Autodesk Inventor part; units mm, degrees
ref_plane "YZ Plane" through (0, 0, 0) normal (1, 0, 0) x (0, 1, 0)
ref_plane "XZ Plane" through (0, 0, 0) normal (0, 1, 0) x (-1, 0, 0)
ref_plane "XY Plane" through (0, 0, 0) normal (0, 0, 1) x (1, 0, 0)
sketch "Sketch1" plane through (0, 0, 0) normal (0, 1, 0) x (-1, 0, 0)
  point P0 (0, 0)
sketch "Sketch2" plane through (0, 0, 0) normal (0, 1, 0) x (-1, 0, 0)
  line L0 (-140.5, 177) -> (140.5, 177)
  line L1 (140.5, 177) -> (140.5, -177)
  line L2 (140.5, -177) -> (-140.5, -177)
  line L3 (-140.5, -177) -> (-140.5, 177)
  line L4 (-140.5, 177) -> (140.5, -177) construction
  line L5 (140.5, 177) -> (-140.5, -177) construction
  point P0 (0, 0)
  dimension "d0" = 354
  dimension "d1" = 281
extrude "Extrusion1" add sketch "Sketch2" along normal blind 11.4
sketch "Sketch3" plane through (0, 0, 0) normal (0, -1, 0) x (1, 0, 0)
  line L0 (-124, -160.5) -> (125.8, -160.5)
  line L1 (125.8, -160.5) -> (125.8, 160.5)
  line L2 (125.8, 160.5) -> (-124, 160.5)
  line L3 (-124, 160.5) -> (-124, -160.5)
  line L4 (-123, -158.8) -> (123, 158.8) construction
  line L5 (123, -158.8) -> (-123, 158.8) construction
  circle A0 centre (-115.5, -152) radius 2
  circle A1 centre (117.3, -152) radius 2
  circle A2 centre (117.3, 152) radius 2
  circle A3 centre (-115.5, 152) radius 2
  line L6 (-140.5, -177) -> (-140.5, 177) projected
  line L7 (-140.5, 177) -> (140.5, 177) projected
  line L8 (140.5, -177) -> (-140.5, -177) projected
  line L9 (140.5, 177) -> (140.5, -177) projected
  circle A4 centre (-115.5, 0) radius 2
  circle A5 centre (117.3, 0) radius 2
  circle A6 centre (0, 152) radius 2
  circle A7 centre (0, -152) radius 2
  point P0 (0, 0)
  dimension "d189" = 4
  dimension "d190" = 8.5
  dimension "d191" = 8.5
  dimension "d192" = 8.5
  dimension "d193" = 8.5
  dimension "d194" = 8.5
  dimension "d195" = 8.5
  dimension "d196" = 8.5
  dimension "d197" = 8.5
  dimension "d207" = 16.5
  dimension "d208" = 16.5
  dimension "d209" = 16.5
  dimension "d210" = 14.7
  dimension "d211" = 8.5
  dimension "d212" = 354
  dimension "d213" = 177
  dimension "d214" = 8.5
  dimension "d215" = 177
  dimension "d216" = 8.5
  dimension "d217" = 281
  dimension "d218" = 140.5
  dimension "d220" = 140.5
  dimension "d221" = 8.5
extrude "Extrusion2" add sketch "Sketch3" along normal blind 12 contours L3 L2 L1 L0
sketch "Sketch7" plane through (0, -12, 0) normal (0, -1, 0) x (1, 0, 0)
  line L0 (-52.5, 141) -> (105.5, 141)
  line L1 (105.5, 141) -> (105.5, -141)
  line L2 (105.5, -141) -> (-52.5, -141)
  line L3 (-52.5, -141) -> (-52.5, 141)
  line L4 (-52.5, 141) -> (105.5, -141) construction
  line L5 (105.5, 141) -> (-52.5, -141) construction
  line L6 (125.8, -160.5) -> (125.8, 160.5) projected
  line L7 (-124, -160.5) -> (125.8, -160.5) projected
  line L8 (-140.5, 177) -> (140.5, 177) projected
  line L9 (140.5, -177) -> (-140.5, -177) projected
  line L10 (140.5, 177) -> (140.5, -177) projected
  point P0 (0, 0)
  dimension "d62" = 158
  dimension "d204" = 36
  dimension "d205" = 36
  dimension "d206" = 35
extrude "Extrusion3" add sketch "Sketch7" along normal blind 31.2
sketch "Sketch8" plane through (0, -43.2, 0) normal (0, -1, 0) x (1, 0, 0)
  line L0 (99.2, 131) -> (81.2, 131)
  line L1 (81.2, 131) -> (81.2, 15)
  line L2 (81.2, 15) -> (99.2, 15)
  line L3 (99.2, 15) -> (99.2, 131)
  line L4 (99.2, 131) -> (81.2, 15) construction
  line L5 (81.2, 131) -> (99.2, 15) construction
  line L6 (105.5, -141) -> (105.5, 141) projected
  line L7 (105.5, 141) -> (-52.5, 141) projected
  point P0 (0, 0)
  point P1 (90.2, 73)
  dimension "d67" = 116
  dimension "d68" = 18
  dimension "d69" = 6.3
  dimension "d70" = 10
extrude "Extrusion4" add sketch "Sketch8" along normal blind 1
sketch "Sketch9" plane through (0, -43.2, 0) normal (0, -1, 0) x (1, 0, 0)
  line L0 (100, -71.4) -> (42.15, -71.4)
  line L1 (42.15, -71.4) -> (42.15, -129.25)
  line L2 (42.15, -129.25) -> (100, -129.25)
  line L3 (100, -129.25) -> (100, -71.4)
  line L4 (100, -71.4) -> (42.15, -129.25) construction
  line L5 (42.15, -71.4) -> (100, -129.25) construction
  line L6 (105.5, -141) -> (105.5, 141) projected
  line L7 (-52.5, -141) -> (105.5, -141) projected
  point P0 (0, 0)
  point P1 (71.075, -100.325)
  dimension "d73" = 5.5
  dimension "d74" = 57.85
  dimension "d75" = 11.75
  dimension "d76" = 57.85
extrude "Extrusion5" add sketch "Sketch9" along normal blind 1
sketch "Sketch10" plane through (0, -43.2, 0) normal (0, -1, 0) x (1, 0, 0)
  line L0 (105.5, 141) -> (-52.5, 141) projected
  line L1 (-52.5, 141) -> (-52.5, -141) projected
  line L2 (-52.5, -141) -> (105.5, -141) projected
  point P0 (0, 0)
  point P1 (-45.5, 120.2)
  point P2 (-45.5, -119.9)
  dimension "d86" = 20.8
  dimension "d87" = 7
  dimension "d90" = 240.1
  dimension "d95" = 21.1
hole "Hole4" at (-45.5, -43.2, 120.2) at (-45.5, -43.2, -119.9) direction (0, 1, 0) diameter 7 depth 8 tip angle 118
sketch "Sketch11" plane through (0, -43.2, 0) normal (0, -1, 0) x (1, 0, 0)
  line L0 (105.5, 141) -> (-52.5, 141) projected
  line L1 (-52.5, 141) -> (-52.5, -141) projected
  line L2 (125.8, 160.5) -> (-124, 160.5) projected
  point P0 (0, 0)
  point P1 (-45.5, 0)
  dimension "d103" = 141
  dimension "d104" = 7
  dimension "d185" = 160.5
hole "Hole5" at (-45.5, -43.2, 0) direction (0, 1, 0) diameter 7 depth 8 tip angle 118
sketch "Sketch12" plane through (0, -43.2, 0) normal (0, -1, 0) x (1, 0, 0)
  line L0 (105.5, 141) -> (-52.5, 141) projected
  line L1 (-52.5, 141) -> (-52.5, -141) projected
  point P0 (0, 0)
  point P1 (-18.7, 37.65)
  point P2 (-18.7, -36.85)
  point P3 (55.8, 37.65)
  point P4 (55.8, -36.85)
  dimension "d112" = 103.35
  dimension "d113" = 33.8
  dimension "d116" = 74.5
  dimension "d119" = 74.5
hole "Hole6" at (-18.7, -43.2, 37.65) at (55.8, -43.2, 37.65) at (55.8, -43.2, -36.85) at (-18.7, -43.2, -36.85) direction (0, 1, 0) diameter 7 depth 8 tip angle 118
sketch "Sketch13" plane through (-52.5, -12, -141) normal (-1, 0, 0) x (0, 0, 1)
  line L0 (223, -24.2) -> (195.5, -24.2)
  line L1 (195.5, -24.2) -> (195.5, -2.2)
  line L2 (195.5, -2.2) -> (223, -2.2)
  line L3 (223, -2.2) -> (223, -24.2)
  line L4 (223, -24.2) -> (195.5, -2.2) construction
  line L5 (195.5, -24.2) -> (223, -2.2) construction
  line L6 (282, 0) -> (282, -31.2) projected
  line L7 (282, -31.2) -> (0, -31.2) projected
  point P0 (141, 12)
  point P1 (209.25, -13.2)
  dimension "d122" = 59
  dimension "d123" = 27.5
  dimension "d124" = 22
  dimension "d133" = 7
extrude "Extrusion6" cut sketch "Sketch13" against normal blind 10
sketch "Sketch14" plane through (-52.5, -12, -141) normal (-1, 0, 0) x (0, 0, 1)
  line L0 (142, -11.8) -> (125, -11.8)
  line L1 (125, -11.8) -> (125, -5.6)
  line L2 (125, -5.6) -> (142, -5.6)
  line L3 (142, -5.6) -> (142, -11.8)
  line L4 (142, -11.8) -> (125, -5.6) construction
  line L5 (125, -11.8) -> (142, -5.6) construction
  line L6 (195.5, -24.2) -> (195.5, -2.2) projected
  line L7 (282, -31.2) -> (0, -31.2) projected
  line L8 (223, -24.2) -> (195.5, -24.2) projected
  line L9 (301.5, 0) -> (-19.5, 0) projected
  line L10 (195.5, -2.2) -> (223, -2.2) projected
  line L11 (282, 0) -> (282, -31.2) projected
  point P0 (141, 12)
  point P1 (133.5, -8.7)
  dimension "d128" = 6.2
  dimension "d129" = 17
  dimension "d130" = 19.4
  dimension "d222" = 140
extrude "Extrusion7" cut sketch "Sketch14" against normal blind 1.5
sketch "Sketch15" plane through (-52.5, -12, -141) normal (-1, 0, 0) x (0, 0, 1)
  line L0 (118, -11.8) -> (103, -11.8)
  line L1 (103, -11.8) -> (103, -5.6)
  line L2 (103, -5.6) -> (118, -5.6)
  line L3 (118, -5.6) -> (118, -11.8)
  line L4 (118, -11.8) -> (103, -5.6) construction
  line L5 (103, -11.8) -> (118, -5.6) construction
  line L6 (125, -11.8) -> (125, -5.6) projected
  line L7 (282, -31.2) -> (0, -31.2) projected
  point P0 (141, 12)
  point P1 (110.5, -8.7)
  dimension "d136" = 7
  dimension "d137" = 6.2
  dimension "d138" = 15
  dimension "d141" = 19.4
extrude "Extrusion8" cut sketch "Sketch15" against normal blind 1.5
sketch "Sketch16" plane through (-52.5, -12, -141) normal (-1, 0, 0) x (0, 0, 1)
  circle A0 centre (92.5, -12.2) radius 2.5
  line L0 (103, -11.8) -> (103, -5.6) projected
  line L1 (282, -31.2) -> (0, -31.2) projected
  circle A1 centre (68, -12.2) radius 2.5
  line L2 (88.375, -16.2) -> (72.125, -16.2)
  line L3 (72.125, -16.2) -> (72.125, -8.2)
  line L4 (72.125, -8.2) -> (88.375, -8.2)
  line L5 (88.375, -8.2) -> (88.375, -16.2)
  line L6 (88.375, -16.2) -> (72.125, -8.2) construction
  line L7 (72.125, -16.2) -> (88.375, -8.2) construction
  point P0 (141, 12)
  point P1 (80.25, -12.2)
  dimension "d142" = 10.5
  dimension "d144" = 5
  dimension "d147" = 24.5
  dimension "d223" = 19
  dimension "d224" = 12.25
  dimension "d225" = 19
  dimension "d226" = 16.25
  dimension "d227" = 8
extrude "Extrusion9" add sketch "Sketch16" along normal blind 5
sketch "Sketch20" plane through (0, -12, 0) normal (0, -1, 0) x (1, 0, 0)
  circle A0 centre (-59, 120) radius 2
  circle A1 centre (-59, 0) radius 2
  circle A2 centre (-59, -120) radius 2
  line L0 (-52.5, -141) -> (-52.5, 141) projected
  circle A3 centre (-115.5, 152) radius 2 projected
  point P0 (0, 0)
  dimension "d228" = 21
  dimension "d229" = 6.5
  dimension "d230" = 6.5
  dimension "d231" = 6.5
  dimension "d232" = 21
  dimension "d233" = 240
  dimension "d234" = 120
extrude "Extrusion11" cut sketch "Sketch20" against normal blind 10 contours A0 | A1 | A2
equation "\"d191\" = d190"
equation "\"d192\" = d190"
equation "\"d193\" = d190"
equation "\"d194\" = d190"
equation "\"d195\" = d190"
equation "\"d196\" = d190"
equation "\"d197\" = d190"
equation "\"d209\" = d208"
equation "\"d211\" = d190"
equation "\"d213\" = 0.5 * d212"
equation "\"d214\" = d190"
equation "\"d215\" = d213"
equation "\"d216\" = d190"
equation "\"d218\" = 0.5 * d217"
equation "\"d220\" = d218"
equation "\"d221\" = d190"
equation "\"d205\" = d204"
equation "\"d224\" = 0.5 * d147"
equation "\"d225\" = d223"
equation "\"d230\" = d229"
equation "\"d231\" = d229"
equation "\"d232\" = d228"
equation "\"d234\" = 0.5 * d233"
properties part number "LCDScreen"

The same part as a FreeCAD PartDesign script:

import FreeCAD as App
import Part
import Sketcher

V = App.Vector


def add_polygon(sketch, points):
    """Adds a closed chain of lines whose ends are joined by coincident constraints."""
    first, n = sketch.GeometryCount, len(points)
    for a, b in zip(points, points[1:] + points[:1]):
        sketch.addGeometry(Part.LineSegment(App.Vector(*a, 0), App.Vector(*b, 0)), False)
    for i in range(n):
        sketch.addConstraint(Sketcher.Constraint("Coincident", first + i, 2, first + (i + 1) % n, 1))

doc = App.newDocument("Part")
body = doc.addObject("PartDesign::Body", "Body")

sketch1 = body.newObject("Sketcher::SketchObject", "Sketch")
sketch1.AttachmentSupport = (doc.getObject("XZ_Plane"), [""])
sketch1.MapMode = "FlatFace"
add_polygon(sketch1, [(-140.5, 177), (140.5, 177), (140.5, -177), (-140.5, -177)])
sketch1.addConstraint(Sketcher.Constraint("Horizontal", 0))
sketch1.addConstraint(Sketcher.Constraint("Vertical", 1))
sketch1.addConstraint(Sketcher.Constraint("Horizontal", 2))
sketch1.addConstraint(Sketcher.Constraint("Vertical", 3))
sketch1.addConstraint(Sketcher.Constraint("Symmetric", 0, 2, 2, 2, -1, 1))
sketch1.addConstraint(Sketcher.Constraint("DistanceX", 0, 1, 0, 2, 281.0))
sketch1.addConstraint(Sketcher.Constraint("DistanceY", 1, 2, 1, 1, 354.0))
pad1 = body.newObject("PartDesign::Pad", "Pad")
pad1.Profile = sketch1
pad1.Length = 11.4
pad1.Reversed = True

sketch2 = body.newObject("Sketcher::SketchObject", "Sketch001")
sketch2.AttachmentSupport = (doc.getObject("XZ_Plane"), [""])
sketch2.MapMode = "FlatFace"
add_polygon(sketch2, [(-124, 160.5), (-124, -160.5), (125.8, -160.5), (125.8, 160.5)])
sketch2.addGeometry(Part.Circle(V(-115.5, -152, 0), V(0, 0, 1), 2), False)
sketch2.addGeometry(Part.Circle(V(0, -152, 0), V(0, 0, 1), 2), False)
sketch2.addGeometry(Part.Circle(V(117.3, -152, 0), V(0, 0, 1), 2), False)
sketch2.addGeometry(Part.Circle(V(-115.5, 0, 0), V(0, 0, 1), 2), False)
sketch2.addGeometry(Part.Circle(V(-115.5, 152, 0), V(0, 0, 1), 2), False)
sketch2.addGeometry(Part.Circle(V(117.3, 0, 0), V(0, 0, 1), 2), False)
sketch2.addGeometry(Part.Circle(V(0, 152, 0), V(0, 0, 1), 2), False)
sketch2.addGeometry(Part.Circle(V(117.3, 152, 0), V(0, 0, 1), 2), False)
sketch2.addConstraint(Sketcher.Constraint("Vertical", 0))
sketch2.addConstraint(Sketcher.Constraint("Horizontal", 1))
sketch2.addConstraint(Sketcher.Constraint("Vertical", 2))
sketch2.addConstraint(Sketcher.Constraint("Horizontal", 3))
sketch2.addConstraint(Sketcher.Constraint("Equal", 4, 5))
sketch2.addConstraint(Sketcher.Constraint("Equal", 5, 6))
sketch2.addConstraint(Sketcher.Constraint("Equal", 6, 7))
sketch2.addConstraint(Sketcher.Constraint("Equal", 7, 8))
sketch2.addConstraint(Sketcher.Constraint("Equal", 8, 9))
sketch2.addConstraint(Sketcher.Constraint("Equal", 9, 10))
sketch2.addConstraint(Sketcher.Constraint("Equal", 10, 11))
sketch2.addConstraint(Sketcher.Constraint("Symmetric", 5, 3, 10, 3, -1, 1))
sketch2.addConstraint(Sketcher.Constraint("Symmetric", 4, 3, 8, 3, -1))
sketch2.addConstraint(Sketcher.Constraint("Symmetric", 6, 3, 11, 3, -1))
sketch2.addConstraint(Sketcher.Constraint("PointOnObject", 5, 3, -2))
sketch2.addConstraint(Sketcher.Constraint("PointOnObject", 7, 3, -1))
sketch2.addConstraint(Sketcher.Constraint("PointOnObject", 9, 3, -1))
sketch2.addConstraint(Sketcher.Constraint("Horizontal", 4, 3, 5, 3))
sketch2.addConstraint(Sketcher.Constraint("Horizontal", 5, 3, 6, 3))
sketch2.addConstraint(Sketcher.Constraint("Vertical", 4, 3, 7, 3))
sketch2.addConstraint(Sketcher.Constraint("Vertical", 6, 3, 9, 3))
sketch2.addConstraint(Sketcher.Constraint("Diameter", 4, 4.0))
sketch2.addConstraint(Sketcher.Constraint("DistanceX", 0, 2, 4, 3, 8.5))
sketch2.addConstraint(Sketcher.Constraint("DistanceY", 0, 2, 4, 3, 8.5))
sketch2.addConstraint(Sketcher.Constraint("DistanceX", 6, 3, 1, 2, 8.5))
sketch2.addConstraint(Sketcher.Constraint("DistanceY", 11, 3, 2, 2, 8.5))
sketch2.addConstraint(Sketcher.Constraint("DistanceY", 0, 2, 0, 1, 321.0))
sketch2.addConstraint(Sketcher.Constraint("DistanceX", 1, 1, 1, 2, 249.8))
sketch2.addConstraint(Sketcher.Constraint("DistanceX", 0, 2, -1, 1, 124.0))
pad2 = body.newObject("PartDesign::Pad", "Pad001")
pad2.Profile = sketch2
pad2.Length = 12

sketch3 = body.newObject("Sketcher::SketchObject", "Sketch002")
sketch3.AttachmentSupport = (doc.getObject("XZ_Plane"), [""])
sketch3.MapMode = "FlatFace"
sketch3.AttachmentOffset = App.Placement(V(0, 0, 12), App.Rotation())
add_polygon(sketch3, [(105.5, 141), (-52.5, 141), (-52.5, -141), (105.5, -141)])
sketch3.addConstraint(Sketcher.Constraint("Horizontal", 0))
sketch3.addConstraint(Sketcher.Constraint("Vertical", 1))
sketch3.addConstraint(Sketcher.Constraint("Horizontal", 2))
sketch3.addConstraint(Sketcher.Constraint("Vertical", 3))
sketch3.addConstraint(Sketcher.Constraint("DistanceX", 0, 2, 0, 1, 158.0))
sketch3.addConstraint(Sketcher.Constraint("DistanceY", 1, 2, 1, 1, 282.0))
sketch3.addConstraint(Sketcher.Constraint("DistanceY", -1, 1, 0, 2, 141.0))
sketch3.addConstraint(Sketcher.Constraint("DistanceX", 0, 2, -1, 1, 52.5))
pad3 = body.newObject("PartDesign::Pad", "Pad002")
pad3.Profile = sketch3
pad3.Length = 31.2

sketch4 = body.newObject("Sketcher::SketchObject", "Sketch003")
sketch4.AttachmentSupport = (doc.getObject("XZ_Plane"), [""])
sketch4.MapMode = "FlatFace"
sketch4.AttachmentOffset = App.Placement(V(0, 0, 43.2), App.Rotation())
add_polygon(sketch4, [(99.2, 15), (99.2, 131), (81.2, 131), (81.2, 15)])
sketch4.addConstraint(Sketcher.Constraint("Vertical", 0))
sketch4.addConstraint(Sketcher.Constraint("Horizontal", 1))
sketch4.addConstraint(Sketcher.Constraint("Vertical", 2))
sketch4.addConstraint(Sketcher.Constraint("Horizontal", 3))
sketch4.addConstraint(Sketcher.Constraint("DistanceX", 1, 2, 1, 1, 18.0))
sketch4.addConstraint(Sketcher.Constraint("DistanceY", 0, 1, 0, 2, 116.0))
sketch4.addConstraint(Sketcher.Constraint("DistanceY", -1, 1, 0, 2, 131.0))
sketch4.addConstraint(Sketcher.Constraint("DistanceX", -1, 1, 0, 2, 99.2))
pad4 = body.newObject("PartDesign::Pad", "Pad003")
pad4.Profile = sketch4
pad4.Length = 1

sketch5 = body.newObject("Sketcher::SketchObject", "Sketch004")
sketch5.AttachmentSupport = (doc.getObject("XZ_Plane"), [""])
sketch5.MapMode = "FlatFace"
sketch5.AttachmentOffset = App.Placement(V(0, 0, 43.2), App.Rotation())
add_polygon(sketch5, [(100, -129.25), (100, -71.4), (42.15, -71.4), (42.15, -129.25)])
sketch5.addConstraint(Sketcher.Constraint("Vertical", 0))
sketch5.addConstraint(Sketcher.Constraint("Horizontal", 1))
sketch5.addConstraint(Sketcher.Constraint("Vertical", 2))
sketch5.addConstraint(Sketcher.Constraint("Horizontal", 3))
sketch5.addConstraint(Sketcher.Constraint("Equal", 3, 0))
sketch5.addConstraint(Sketcher.Constraint("DistanceX", 1, 2, 1, 1, 57.85))
sketch5.addConstraint(Sketcher.Constraint("DistanceX", -1, 1, 0, 2, 100.0))
sketch5.addConstraint(Sketcher.Constraint("DistanceY", 0, 2, -1, 1, 71.4))
pad5 = body.newObject("PartDesign::Pad", "Pad004")
pad5.Profile = sketch5
pad5.Length = 1

sketch6 = body.newObject("Sketcher::SketchObject", "Sketch005")
sketch6.AttachmentSupport = (doc.getObject("XZ_Plane"), [""])
sketch6.MapMode = "FlatFace"
sketch6.AttachmentOffset = App.Placement(V(0, 0, 43.2), App.Rotation())
sketch6.addGeometry(Part.Circle(V(-45.5, 120.2, 0), V(0, 0, 1), 3.5), False)
sketch6.addGeometry(Part.Circle(V(-45.5, -119.9, 0), V(0, 0, 1), 3.5), False)
sketch6.addConstraint(Sketcher.Constraint("Equal", 0, 1))
sketch6.addConstraint(Sketcher.Constraint("Vertical", 0, 3, 1, 3))
sketch6.addConstraint(Sketcher.Constraint("Diameter", 0, 7.0))
sketch6.addConstraint(Sketcher.Constraint("DistanceX", 0, 3, -1, 1, 45.5))
sketch6.addConstraint(Sketcher.Constraint("DistanceY", -1, 1, 0, 3, 120.2))
sketch6.addConstraint(Sketcher.Constraint("DistanceY", 1, 3, -1, 1, 119.9))
doc.recompute()
hole = body.newObject("PartDesign::Hole", "Hole")
hole.Profile = sketch6
hole.ThreadType = "None"
hole.Diameter = 7
hole.DepthType = "Dimension"
hole.Depth = 8
hole.DrillPoint = "Angled"
hole.DrillPointAngle = 118

sketch7 = body.newObject("Sketcher::SketchObject", "Sketch006")
sketch7.AttachmentSupport = (doc.getObject("XZ_Plane"), [""])
sketch7.MapMode = "FlatFace"
sketch7.AttachmentOffset = App.Placement(V(0, 0, 43.2), App.Rotation())
sketch7.addGeometry(Part.Circle(V(-45.5, 0, 0), V(0, 0, 1), 3.5), False)
sketch7.addConstraint(Sketcher.Constraint("PointOnObject", 0, 3, -1))
sketch7.addConstraint(Sketcher.Constraint("Diameter", 0, 7.0))
sketch7.addConstraint(Sketcher.Constraint("DistanceX", 0, 3, -1, 1, 45.5))
doc.recompute()
hole2 = body.newObject("PartDesign::Hole", "Hole001")
hole2.Profile = sketch7
hole2.ThreadType = "None"
hole2.Diameter = 7
hole2.DepthType = "Dimension"
hole2.Depth = 8
hole2.DrillPoint = "Angled"
hole2.DrillPointAngle = 118

sketch8 = body.newObject("Sketcher::SketchObject", "Sketch007")
sketch8.AttachmentSupport = (doc.getObject("XZ_Plane"), [""])
sketch8.MapMode = "FlatFace"
sketch8.AttachmentOffset = App.Placement(V(0, 0, 43.2), App.Rotation())
sketch8.addGeometry(Part.Circle(V(-18.7, 37.65, 0), V(0, 0, 1), 3.5), False)
sketch8.addGeometry(Part.Circle(V(55.8, 37.65, 0), V(0, 0, 1), 3.5), False)
sketch8.addGeometry(Part.Circle(V(55.8, -36.85, 0), V(0, 0, 1), 3.5), False)
sketch8.addGeometry(Part.Circle(V(-18.7, -36.85, 0), V(0, 0, 1), 3.5), False)
sketch8.addConstraint(Sketcher.Constraint("Equal", 0, 1))
sketch8.addConstraint(Sketcher.Constraint("Equal", 1, 2))
sketch8.addConstraint(Sketcher.Constraint("Equal", 2, 3))
sketch8.addConstraint(Sketcher.Constraint("Horizontal", 0, 3, 1, 3))
sketch8.addConstraint(Sketcher.Constraint("Horizontal", 2, 3, 3, 3))
sketch8.addConstraint(Sketcher.Constraint("Vertical", 1, 3, 2, 3))
sketch8.addConstraint(Sketcher.Constraint("Vertical", 0, 3, 3, 3))
sketch8.addConstraint(Sketcher.Constraint("Diameter", 0, 7.0))
sketch8.addConstraint(Sketcher.Constraint("DistanceX", 0, 3, -1, 1, 18.7))
sketch8.addConstraint(Sketcher.Constraint("DistanceX", -1, 1, 1, 3, 55.8))
sketch8.addConstraint(Sketcher.Constraint("DistanceY", 2, 3, 1, 3, 74.5))
sketch8.addConstraint(Sketcher.Constraint("DistanceY", -1, 1, 0, 3, 37.65))
doc.recompute()
hole3 = body.newObject("PartDesign::Hole", "Hole002")
hole3.Profile = sketch8
hole3.ThreadType = "None"
hole3.Diameter = 7
hole3.DepthType = "Dimension"
hole3.Depth = 8
hole3.DrillPoint = "Angled"
hole3.DrillPointAngle = 118

sketch9 = body.newObject("Sketcher::SketchObject", "Sketch008")
sketch9.AttachmentSupport = (doc.getObject("YZ_Plane"), [""])
sketch9.MapMode = "FlatFace"
sketch9.AttachmentOffset = App.Placement(V(0, 0, -52.5), App.Rotation())
add_polygon(sketch9, [(-36.2, 54.5), (-36.2, 82), (-14.2, 82), (-14.2, 54.5)])
sketch9.addConstraint(Sketcher.Constraint("Vertical", 0))
sketch9.addConstraint(Sketcher.Constraint("Horizontal", 1))
sketch9.addConstraint(Sketcher.Constraint("Vertical", 2))
sketch9.addConstraint(Sketcher.Constraint("Horizontal", 3))
sketch9.addConstraint(Sketcher.Constraint("DistanceX", 1, 1, 1, 2, 22.0))
sketch9.addConstraint(Sketcher.Constraint("DistanceY", 0, 1, 0, 2, 27.5))
sketch9.addConstraint(Sketcher.Constraint("DistanceY", -1, 1, 0, 2, 82.0))
sketch9.addConstraint(Sketcher.Constraint("DistanceX", 0, 2, -1, 1, 36.2))
pocket1 = body.newObject("PartDesign::Pocket", "Pocket")
pocket1.Profile = sketch9
pocket1.Length = 10
pocket1.Reversed = True

sketch10 = body.newObject("Sketcher::SketchObject", "Sketch009")
sketch10.AttachmentSupport = (doc.getObject("YZ_Plane"), [""])
sketch10.MapMode = "FlatFace"
sketch10.AttachmentOffset = App.Placement(V(0, 0, -52.5), App.Rotation())
add_polygon(sketch10, [(-23.8, -16), (-23.8, 1), (-17.6, 1), (-17.6, -16)])
sketch10.addConstraint(Sketcher.Constraint("Vertical", 0))
sketch10.addConstraint(Sketcher.Constraint("Horizontal", 1))
sketch10.addConstraint(Sketcher.Constraint("Vertical", 2))
sketch10.addConstraint(Sketcher.Constraint("Horizontal", 3))
sketch10.addConstraint(Sketcher.Constraint("DistanceY", 0, 1, 0, 2, 17.0))
sketch10.addConstraint(Sketcher.Constraint("DistanceX", 1, 1, 1, 2, 6.2))
sketch10.addConstraint(Sketcher.Constraint("DistanceY", -1, 1, 0, 2, 1.0))
sketch10.addConstraint(Sketcher.Constraint("DistanceX", 0, 2, -1, 1, 23.8))
pocket2 = body.newObject("PartDesign::Pocket", "Pocket001")
pocket2.Profile = sketch10
pocket2.Length = 1.5
pocket2.Reversed = True

sketch11 = body.newObject("Sketcher::SketchObject", "Sketch010")
sketch11.AttachmentSupport = (doc.getObject("YZ_Plane"), [""])
sketch11.MapMode = "FlatFace"
sketch11.AttachmentOffset = App.Placement(V(0, 0, -52.5), App.Rotation())
add_polygon(sketch11, [(-23.8, -38), (-23.8, -23), (-17.6, -23), (-17.6, -38)])
sketch11.addConstraint(Sketcher.Constraint("Vertical", 0))
sketch11.addConstraint(Sketcher.Constraint("Horizontal", 1))
sketch11.addConstraint(Sketcher.Constraint("Vertical", 2))
sketch11.addConstraint(Sketcher.Constraint("Horizontal", 3))
sketch11.addConstraint(Sketcher.Constraint("DistanceY", 0, 1, 0, 2, 15.0))
sketch11.addConstraint(Sketcher.Constraint("DistanceX", 1, 1, 1, 2, 6.2))
sketch11.addConstraint(Sketcher.Constraint("DistanceY", 0, 2, -1, 1, 23.0))
sketch11.addConstraint(Sketcher.Constraint("DistanceX", 0, 2, -1, 1, 23.8))
pocket3 = body.newObject("PartDesign::Pocket", "Pocket002")
pocket3.Profile = sketch11
pocket3.Length = 1.5
pocket3.Reversed = True

sketch12 = body.newObject("Sketcher::SketchObject", "Sketch011")
sketch12.AttachmentSupport = (doc.getObject("YZ_Plane"), [""])
sketch12.MapMode = "FlatFace"
sketch12.AttachmentOffset = App.Placement(V(0, 0, -52.5), App.Rotation())
sketch12.addGeometry(Part.Circle(V(-24.2, -48.5, 0), V(0, 0, 1), 2.5), False)
sketch12.addGeometry(Part.Circle(V(-24.2, -73, 0), V(0, 0, 1), 2.5), False)
add_polygon(sketch12, [(-28.2, -68.875), (-28.2, -52.625), (-20.2, -52.625), (-20.2, -68.875)])
sketch12.addConstraint(Sketcher.Constraint("Vertical", 2))
sketch12.addConstraint(Sketcher.Constraint("Horizontal", 3))
sketch12.addConstraint(Sketcher.Constraint("Vertical", 4))
sketch12.addConstraint(Sketcher.Constraint("Horizontal", 5))
sketch12.addConstraint(Sketcher.Constraint("Equal", 0, 1))
sketch12.addConstraint(Sketcher.Constraint("Vertical", 0, 3, 1, 3))
sketch12.addConstraint(Sketcher.Constraint("Diameter", 0, 5.0))
sketch12.addConstraint(Sketcher.Constraint("DistanceX", 3, 1, 3, 2, 8.0))
sketch12.addConstraint(Sketcher.Constraint("DistanceY", 2, 1, 2, 2, 16.25))
sketch12.addConstraint(Sketcher.Constraint("DistanceY", 1, 3, 0, 3, 24.5))
sketch12.addConstraint(Sketcher.Constraint("DistanceY", 1, 3, -1, 1, 73.0))
sketch12.addConstraint(Sketcher.Constraint("DistanceX", 2, 2, 0, 3, 4.0))
sketch12.addConstraint(Sketcher.Constraint("DistanceX", 0, 3, -1, 1, 24.2))
sketch12.addConstraint(Sketcher.Constraint("DistanceY", 2, 2, -1, 1, 52.625))
pad6 = body.newObject("PartDesign::Pad", "Pad005")
pad6.Profile = sketch12
pad6.Length = 5
pad6.Reversed = True

sketch13 = body.newObject("Sketcher::SketchObject", "Sketch012")
sketch13.AttachmentSupport = (doc.getObject("XZ_Plane"), [""])
sketch13.MapMode = "FlatFace"
sketch13.AttachmentOffset = App.Placement(V(0, 0, 12), App.Rotation())
sketch13.addGeometry(Part.Circle(V(-59, 120, 0), V(0, 0, 1), 2), False)
sketch13.addGeometry(Part.Circle(V(-59, 0, 0), V(0, 0, 1), 2), False)
sketch13.addGeometry(Part.Circle(V(-59, -120, 0), V(0, 0, 1), 2), False)
sketch13.addConstraint(Sketcher.Constraint("Equal", 0, 1))
sketch13.addConstraint(Sketcher.Constraint("Equal", 1, 2))
sketch13.addConstraint(Sketcher.Constraint("Symmetric", 0, 3, 2, 3, -1))
sketch13.addConstraint(Sketcher.Constraint("PointOnObject", 1, 3, -1))
sketch13.addConstraint(Sketcher.Constraint("Vertical", 0, 3, 1, 3))
sketch13.addConstraint(Sketcher.Constraint("Diameter", 0, 4.0))
sketch13.addConstraint(Sketcher.Constraint("DistanceY", -1, 1, 0, 3, 120.0))
sketch13.addConstraint(Sketcher.Constraint("DistanceX", 0, 3, -1, 1, 59.0))
pocket4 = body.newObject("PartDesign::Pocket", "Pocket003")
pocket4.Profile = sketch13
pocket4.Length = 10

doc.recompute()
